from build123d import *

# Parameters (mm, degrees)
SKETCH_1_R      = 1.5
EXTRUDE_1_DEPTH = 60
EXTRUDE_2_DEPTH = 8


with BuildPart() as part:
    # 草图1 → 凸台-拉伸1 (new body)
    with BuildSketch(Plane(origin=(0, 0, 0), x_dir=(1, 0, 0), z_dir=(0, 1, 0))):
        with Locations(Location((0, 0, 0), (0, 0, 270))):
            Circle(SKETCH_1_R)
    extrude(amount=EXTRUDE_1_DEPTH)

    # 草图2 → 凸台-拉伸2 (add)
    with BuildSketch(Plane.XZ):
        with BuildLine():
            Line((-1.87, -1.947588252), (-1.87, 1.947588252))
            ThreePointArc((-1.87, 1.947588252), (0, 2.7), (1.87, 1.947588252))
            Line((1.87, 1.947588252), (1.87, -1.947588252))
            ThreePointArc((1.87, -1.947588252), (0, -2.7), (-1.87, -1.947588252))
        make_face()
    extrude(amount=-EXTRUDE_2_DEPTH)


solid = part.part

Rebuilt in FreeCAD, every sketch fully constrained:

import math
import FreeCAD as App
import Part
import Sketcher
from FreeCAD import Vector
Q = App.Units.Quantity

doc = App.newDocument("Part")
body = doc.addObject("PartDesign::Body", "Body")

# Sketch on XZ plane
sketch1 = body.newObject("Sketcher::SketchObject", "Sketch")
sketch1.AttachmentSupport = (doc.getObject("XZ_Plane"), [""])
sketch1.MapMode = "FlatFace"
sketch1.addGeometry(Part.Circle(Vector(0, 0, 0), Vector(0, 0, 1), 1.5), False)
sketch1.addConstraint([
    Sketcher.Constraint("Coincident", 0, 3, -1, 1),
    Sketcher.Constraint("Diameter", 0, Q("3 mm")),
])
pad1 = body.newObject("PartDesign::Pad", "Pad")
pad1.Profile = sketch1
pad1.Length = 60
pad1.Reversed = True

# Sketch on XZ plane
sketch2 = body.newObject("Sketcher::SketchObject", "Sketch001")
sketch2.AttachmentSupport = (doc.getObject("XZ_Plane"), [""])
sketch2.MapMode = "FlatFace"
sketch2.addGeometry([
    Part.LineSegment(Vector(-1.9, 1.9, 0), Vector(-1.9, -1.9, 0)),
    Part.ArcOfCircle(Part.Circle(Vector(0, 0, 0), Vector(0, 0, 1), 2.7), math.radians(-134), math.radians(-46)),
    Part.LineSegment(Vector(1.9, -1.9, 0), Vector(1.9, 1.9, 0)),
    Part.ArcOfCircle(Part.Circle(Vector(0, 0, 0), Vector(0, 0, 1), 2.7), math.radians(46), math.radians(134)),
], False)
sketch2.addConstraint([
    Sketcher.Constraint("Coincident", 0, 2, 1, 1),
    Sketcher.Constraint("Coincident", 1, 2, 2, 1),
    Sketcher.Constraint("Coincident", 2, 2, 3, 1),
    Sketcher.Constraint("Coincident", 3, 2, 0, 1),
    Sketcher.Constraint("Vertical", 0),
    Sketcher.Constraint("Vertical", 2),
    Sketcher.Constraint("Coincident", 1, 3, -1, 1),
    Sketcher.Constraint("Coincident", 3, 3, -1, 1),
    Sketcher.Constraint("Equal", 1, 3),
    Sketcher.Constraint("Horizontal", 0, 2, 1, 2),
    Sketcher.Constraint("Radius", 1, Q("2.7 mm")),
    Sketcher.Constraint("DistanceX", 0, 2, -1, 1, Q("1.87 mm")),
])
pad2 = body.newObject("PartDesign::Pad", "Pad001")
pad2.Profile = sketch2
pad2.Length = 8
pad2.Reversed = True

doc.recompute()
